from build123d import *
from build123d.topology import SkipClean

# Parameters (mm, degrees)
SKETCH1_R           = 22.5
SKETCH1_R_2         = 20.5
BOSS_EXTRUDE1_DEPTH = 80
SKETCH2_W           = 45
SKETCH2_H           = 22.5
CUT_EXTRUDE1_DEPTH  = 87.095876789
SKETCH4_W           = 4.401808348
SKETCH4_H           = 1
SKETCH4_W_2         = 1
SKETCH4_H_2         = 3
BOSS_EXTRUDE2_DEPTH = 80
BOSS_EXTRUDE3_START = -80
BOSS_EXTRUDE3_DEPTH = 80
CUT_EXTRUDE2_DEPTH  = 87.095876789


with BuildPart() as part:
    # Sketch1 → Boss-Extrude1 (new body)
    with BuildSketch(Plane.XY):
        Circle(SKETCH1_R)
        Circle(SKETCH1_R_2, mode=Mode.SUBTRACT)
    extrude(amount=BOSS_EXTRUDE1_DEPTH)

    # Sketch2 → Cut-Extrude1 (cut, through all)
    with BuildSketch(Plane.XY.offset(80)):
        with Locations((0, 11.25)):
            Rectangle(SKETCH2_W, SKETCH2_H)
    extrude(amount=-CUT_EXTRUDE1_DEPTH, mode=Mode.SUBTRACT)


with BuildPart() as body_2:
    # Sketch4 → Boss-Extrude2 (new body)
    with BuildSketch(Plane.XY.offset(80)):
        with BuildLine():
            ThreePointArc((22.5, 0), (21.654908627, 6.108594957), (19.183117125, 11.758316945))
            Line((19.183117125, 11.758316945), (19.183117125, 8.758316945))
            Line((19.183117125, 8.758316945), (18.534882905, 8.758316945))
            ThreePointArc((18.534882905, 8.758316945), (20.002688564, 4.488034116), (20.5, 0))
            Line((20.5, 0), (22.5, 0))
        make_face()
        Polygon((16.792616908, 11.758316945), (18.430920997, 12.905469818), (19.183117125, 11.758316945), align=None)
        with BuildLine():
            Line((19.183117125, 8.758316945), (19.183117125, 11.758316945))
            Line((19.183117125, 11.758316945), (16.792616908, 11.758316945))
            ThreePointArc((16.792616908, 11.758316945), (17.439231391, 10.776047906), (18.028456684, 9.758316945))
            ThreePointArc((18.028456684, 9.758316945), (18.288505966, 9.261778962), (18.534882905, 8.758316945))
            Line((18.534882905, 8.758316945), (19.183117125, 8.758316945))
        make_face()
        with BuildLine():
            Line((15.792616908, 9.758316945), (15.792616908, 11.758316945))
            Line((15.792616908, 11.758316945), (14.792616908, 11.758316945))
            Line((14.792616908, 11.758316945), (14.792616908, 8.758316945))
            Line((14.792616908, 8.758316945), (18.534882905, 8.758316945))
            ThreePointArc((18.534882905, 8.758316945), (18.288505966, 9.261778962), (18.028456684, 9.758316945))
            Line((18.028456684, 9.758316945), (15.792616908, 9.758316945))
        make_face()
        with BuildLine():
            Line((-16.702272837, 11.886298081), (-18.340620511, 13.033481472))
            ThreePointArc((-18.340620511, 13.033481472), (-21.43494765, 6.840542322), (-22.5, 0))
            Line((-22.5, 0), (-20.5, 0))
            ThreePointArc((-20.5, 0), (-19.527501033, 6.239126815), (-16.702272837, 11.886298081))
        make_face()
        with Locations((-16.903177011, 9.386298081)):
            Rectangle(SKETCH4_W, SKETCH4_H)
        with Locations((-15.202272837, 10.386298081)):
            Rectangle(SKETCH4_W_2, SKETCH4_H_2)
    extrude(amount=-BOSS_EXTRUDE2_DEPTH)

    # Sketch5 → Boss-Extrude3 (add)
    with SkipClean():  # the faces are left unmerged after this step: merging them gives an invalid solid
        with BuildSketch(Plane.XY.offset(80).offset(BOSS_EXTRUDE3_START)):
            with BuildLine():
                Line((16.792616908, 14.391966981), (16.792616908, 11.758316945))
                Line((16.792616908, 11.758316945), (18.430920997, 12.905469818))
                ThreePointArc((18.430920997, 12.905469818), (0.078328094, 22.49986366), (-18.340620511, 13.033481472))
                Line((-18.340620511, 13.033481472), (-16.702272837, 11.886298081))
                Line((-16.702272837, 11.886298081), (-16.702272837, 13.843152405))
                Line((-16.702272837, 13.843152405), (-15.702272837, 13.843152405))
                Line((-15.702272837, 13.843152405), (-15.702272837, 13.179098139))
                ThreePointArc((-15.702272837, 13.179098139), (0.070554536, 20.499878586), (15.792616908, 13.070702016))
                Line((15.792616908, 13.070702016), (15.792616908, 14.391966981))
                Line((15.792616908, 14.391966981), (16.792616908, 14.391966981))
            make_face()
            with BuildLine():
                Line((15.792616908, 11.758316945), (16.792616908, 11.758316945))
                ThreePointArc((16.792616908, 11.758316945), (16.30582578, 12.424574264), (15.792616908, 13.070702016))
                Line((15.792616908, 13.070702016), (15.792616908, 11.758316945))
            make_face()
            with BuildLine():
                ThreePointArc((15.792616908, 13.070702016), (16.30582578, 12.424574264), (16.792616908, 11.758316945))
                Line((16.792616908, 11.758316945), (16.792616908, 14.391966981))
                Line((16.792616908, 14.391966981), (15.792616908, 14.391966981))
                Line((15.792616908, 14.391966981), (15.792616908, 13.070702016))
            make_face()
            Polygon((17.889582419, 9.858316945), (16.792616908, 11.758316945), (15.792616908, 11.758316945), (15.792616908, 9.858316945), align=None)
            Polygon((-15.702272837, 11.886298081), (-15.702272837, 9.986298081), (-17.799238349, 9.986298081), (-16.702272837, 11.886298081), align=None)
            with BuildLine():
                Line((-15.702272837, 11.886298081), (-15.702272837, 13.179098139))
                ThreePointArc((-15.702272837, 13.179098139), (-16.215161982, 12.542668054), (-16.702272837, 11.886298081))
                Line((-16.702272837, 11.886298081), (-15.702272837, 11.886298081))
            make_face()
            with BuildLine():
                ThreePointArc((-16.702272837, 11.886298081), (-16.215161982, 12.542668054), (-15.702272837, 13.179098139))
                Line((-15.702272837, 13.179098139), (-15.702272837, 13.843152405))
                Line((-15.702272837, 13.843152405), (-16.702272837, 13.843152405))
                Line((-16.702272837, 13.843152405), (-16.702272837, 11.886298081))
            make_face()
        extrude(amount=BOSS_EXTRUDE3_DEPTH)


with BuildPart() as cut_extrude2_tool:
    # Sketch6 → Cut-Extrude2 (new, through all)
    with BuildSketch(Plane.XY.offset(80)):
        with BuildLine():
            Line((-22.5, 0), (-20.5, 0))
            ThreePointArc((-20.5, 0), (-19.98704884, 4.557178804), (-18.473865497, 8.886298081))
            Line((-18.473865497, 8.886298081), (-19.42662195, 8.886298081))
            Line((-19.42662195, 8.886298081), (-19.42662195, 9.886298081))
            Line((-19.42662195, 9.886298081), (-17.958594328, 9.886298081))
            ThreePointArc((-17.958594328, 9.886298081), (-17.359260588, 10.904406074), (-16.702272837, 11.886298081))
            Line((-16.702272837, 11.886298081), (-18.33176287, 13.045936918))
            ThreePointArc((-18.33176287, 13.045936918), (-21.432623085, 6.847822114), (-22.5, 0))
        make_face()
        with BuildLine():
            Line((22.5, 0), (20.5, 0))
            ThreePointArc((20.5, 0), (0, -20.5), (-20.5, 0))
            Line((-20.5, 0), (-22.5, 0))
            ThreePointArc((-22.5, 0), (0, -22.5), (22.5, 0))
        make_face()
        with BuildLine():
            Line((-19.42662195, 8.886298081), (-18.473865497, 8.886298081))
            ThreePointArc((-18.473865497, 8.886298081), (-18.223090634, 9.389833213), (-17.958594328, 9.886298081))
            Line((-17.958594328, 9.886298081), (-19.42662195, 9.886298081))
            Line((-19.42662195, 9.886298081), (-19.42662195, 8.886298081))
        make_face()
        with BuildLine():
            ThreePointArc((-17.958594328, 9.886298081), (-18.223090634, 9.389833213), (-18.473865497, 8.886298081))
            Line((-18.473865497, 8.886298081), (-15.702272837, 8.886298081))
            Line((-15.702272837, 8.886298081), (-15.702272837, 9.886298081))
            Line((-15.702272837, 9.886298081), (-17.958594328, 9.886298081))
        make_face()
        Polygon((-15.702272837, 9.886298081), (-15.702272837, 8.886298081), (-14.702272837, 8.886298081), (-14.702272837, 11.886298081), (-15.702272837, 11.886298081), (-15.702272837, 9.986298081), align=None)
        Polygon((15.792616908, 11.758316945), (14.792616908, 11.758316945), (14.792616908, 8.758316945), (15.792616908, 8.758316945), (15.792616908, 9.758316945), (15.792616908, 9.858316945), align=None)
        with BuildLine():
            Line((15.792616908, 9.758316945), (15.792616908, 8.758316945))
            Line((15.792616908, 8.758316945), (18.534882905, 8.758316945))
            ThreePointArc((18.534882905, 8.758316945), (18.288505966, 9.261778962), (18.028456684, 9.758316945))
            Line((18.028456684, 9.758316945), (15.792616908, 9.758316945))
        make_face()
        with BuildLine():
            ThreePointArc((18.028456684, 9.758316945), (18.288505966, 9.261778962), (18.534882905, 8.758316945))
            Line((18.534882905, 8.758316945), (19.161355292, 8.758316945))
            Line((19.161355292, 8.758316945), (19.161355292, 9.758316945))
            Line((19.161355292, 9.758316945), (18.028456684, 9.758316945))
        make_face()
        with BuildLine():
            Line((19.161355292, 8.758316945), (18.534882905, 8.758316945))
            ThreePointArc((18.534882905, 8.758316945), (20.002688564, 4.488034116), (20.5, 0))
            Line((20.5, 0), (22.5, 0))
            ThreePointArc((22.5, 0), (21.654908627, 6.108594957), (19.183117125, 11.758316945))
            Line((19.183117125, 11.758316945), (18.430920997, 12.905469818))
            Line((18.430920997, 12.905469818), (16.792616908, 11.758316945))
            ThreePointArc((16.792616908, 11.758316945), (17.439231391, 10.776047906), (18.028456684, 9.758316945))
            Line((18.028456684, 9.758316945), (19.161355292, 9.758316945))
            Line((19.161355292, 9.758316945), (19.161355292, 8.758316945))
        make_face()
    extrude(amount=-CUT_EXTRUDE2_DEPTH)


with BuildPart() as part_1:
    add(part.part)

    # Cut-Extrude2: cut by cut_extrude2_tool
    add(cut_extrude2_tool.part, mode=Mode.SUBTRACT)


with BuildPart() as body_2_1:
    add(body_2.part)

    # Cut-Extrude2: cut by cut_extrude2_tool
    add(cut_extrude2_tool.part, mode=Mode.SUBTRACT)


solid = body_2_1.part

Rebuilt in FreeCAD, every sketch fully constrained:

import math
import FreeCAD as App
import Part
import Sketcher
Q = App.Units.Quantity

doc = App.newDocument("Part")
body = doc.addObject("PartDesign::Body", "Body")

# Sketch on XY plane
sketch1 = body.newObject("Sketcher::SketchObject", "Sketch")
sketch1.AttachmentSupport = (doc.getObject("XY_Plane"), [""])
sketch1.MapMode = "FlatFace"
sketch1.addGeometry(Part.Circle(App.Vector(0, 0, 0), App.Vector(0, 0, 1), 22), False)
sketch1.addGeometry(Part.Circle(App.Vector(0, 0, 0), App.Vector(0, 0, 1), 20), False)
sketch1.addConstraint(Sketcher.Constraint("Coincident", 0, 3, -1, 1))
sketch1.addConstraint(Sketcher.Constraint("Coincident", 1, 3, -1, 1))
sketch1.addConstraint(Sketcher.Constraint("Diameter", 0, Q("45 mm")))
sketch1.addConstraint(Sketcher.Constraint("Diameter", 1, Q("41 mm")))
pad1 = body.newObject("PartDesign::Pad", "Pad")
pad1.Profile = sketch1
pad1.Length = 80

# Sketch on XY plane
sketch2 = body.newObject("Sketcher::SketchObject", "Sketch001")
sketch2.AttachmentSupport = (doc.getObject("XY_Plane"), [""])
sketch2.MapMode = "FlatFace"
sketch2.AttachmentOffset = App.Placement(App.Vector(0, 0, 80), App.Rotation())
sketch2.addGeometry(Part.LineSegment(App.Vector(-22, 22, 0), App.Vector(-22, 0, 0)), False)
sketch2.addGeometry(Part.LineSegment(App.Vector(-22, 0, 0), App.Vector(22, 0, 0)), False)
sketch2.addGeometry(Part.LineSegment(App.Vector(22, 0, 0), App.Vector(22, 22, 0)), False)
sketch2.addGeometry(Part.LineSegment(App.Vector(22, 22, 0), App.Vector(-22, 22, 0)), False)
sketch2.addConstraint(Sketcher.Constraint("Coincident", 0, 2, 1, 1))
sketch2.addConstraint(Sketcher.Constraint("Coincident", 1, 2, 2, 1))
sketch2.addConstraint(Sketcher.Constraint("Coincident", 2, 2, 3, 1))
sketch2.addConstraint(Sketcher.Constraint("Coincident", 3, 2, 0, 1))
sketch2.addConstraint(Sketcher.Constraint("Vertical", 0))
sketch2.addConstraint(Sketcher.Constraint("Horizontal", 1))
sketch2.addConstraint(Sketcher.Constraint("Vertical", 2))
sketch2.addConstraint(Sketcher.Constraint("Horizontal", 3))
sketch2.addConstraint(Sketcher.Constraint("Symmetric", 0, 2, 1, 2, -1, 1))
sketch2.addConstraint(Sketcher.Constraint("DistanceX", 1, 1, 1, 2, Q("45 mm")))
sketch2.addConstraint(Sketcher.Constraint("DistanceY", 0, 2, 0, 1, Q("22.5 mm")))
pocket1 = body.newObject("PartDesign::Pocket", "Pocket")
pocket1.Profile = sketch2
pocket1.Type = "ThroughAll"
body2 = doc.addObject("PartDesign::Body", "Body001")
body2.AllowCompound = True

# Sketch on XY plane
sketch3 = body2.newObject("Sketcher::SketchObject", "Sketch002")
sketch3.AttachmentSupport = (doc.getObject("XY_Plane001"), [""])
sketch3.MapMode = "FlatFace"
sketch3.AttachmentOffset = App.Placement(App.Vector(0, 0, 80), App.Rotation())
sketch3.addGeometry(Part.ArcOfCircle(Part.Circle(App.Vector(0, 0, 0), App.Vector(0, 0, 1), 22.5), math.radians(0), math.radians(32)), False)
sketch3.addGeometry(Part.LineSegment(App.Vector(19.2, 11.8, 0), App.Vector(18.4, 12.9, 0)), False)
sketch3.addGeometry(Part.LineSegment(App.Vector(18.4, 12.9, 0), App.Vector(16.8, 11.8, 0)), False)
sketch3.addGeometry(Part.ArcOfCircle(Part.Circle(App.Vector(0, 0, 0), App.Vector(0, 0, 1), 20.5), math.radians(28.43), math.radians(35)), False)
sketch3.addGeometry(Part.LineSegment(App.Vector(18, 9.8, 0), App.Vector(15.8, 9.8, 0)), False)
sketch3.addGeometry(Part.LineSegment(App.Vector(15.8, 9.8, 0), App.Vector(15.8, 11.8, 0)), False)
sketch3.addGeometry(Part.LineSegment(App.Vector(15.8, 11.8, 0), App.Vector(14.8, 11.8, 0)), False)
sketch3.addGeometry(Part.LineSegment(App.Vector(14.8, 11.8, 0), App.Vector(14.8, 8.8, 0)), False)
sketch3.addGeometry(Part.LineSegment(App.Vector(14.8, 8.8, 0), App.Vector(18.5, 8.8, 0)), False)
sketch3.addGeometry(Part.ArcOfCircle(Part.Circle(App.Vector(0, 0, 0), App.Vector(0, 0, 1), 20.5), math.radians(0), math.radians(25)), False)
sketch3.addGeometry(Part.LineSegment(App.Vector(20.5, 0, 0), App.Vector(22.5, 0, 0)), False)
sketch3.addGeometry(Part.LineSegment(App.Vector(-15.7, 9.9, 0), App.Vector(-18, 9.9, 0)), False)
sketch3.addGeometry(Part.ArcOfCircle(Part.Circle(App.Vector(0, 0, 0), App.Vector(0, 0, 1), 20.5), math.radians(144.56), math.radians(151.17)), False)
sketch3.addGeometry(Part.LineSegment(App.Vector(-16.7, 11.9, 0), App.Vector(-18.3, 13, 0)), False)
sketch3.addGeometry(Part.ArcOfCircle(Part.Circle(App.Vector(0, 0, 0), App.Vector(0, 0, 1), 22.5), math.radians(145), math.radians(180)), False)
sketch3.addGeometry(Part.LineSegment(App.Vector(-22.5, 0, 0), App.Vector(-20.5, 0, 0)), False)
sketch3.addGeometry(Part.ArcOfCircle(Part.Circle(App.Vector(0, 0, 0), App.Vector(0, 0, 1), 20.5), math.radians(154), math.radians(180)), False)
sketch3.addGeometry(Part.LineSegment(App.Vector(-18.5, 8.9, 0), App.Vector(-14.7, 8.9, 0)), False)
sketch3.addGeometry(Part.LineSegment(App.Vector(-14.7, 8.9, 0), App.Vector(-14.7, 11.9, 0)), False)
sketch3.addGeometry(Part.LineSegment(App.Vector(-14.7, 11.9, 0), App.Vector(-15.7, 11.9, 0)), False)
sketch3.addGeometry(Part.LineSegment(App.Vector(-15.7, 11.9, 0), App.Vector(-15.7, 9.9, 0)), False)
sketch3.addConstraint(Sketcher.Constraint("Coincident", 0, 2, 1, 1))
sketch3.addConstraint(Sketcher.Constraint("Coincident", 1, 2, 2, 1))
sketch3.addConstraint(Sketcher.Constraint("Coincident", 2, 2, 3, 2))
sketch3.addConstraint(Sketcher.Constraint("Coincident", 3, 1, 4, 1))
sketch3.addConstraint(Sketcher.Constraint("Coincident", 4, 2, 5, 1))
sketch3.addConstraint(Sketcher.Constraint("Coincident", 5, 2, 6, 1))
sketch3.addConstraint(Sketcher.Constraint("Coincident", 6, 2, 7, 1))
sketch3.addConstraint(Sketcher.Constraint("Coincident", 7, 2, 8, 1))
sketch3.addConstraint(Sketcher.Constraint("Coincident", 8, 2, 9, 2))
sketch3.addConstraint(Sketcher.Constraint("Coincident", 9, 1, 10, 1))
sketch3.addConstraint(Sketcher.Constraint("Coincident", 10, 2, 0, 1))
sketch3.addConstraint(Sketcher.Constraint("Coincident", 11, 2, 12, 2))
sketch3.addConstraint(Sketcher.Constraint("Coincident", 12, 1, 13, 1))
sketch3.addConstraint(Sketcher.Constraint("Coincident", 13, 2, 14, 1))
sketch3.addConstraint(Sketcher.Constraint("Coincident", 14, 2, 15, 1))
sketch3.addConstraint(Sketcher.Constraint("Coincident", 15, 2, 16, 2))
sketch3.addConstraint(Sketcher.Constraint("Coincident", 16, 1, 17, 1))
sketch3.addConstraint(Sketcher.Constraint("Coincident", 17, 2, 18, 1))
sketch3.addConstraint(Sketcher.Constraint("Coincident", 18, 2, 19, 1))
sketch3.addConstraint(Sketcher.Constraint("Coincident", 19, 2, 20, 1))
sketch3.addConstraint(Sketcher.Constraint("Coincident", 20, 2, 11, 1))
sketch3.addConstraint(Sketcher.Constraint("Horizontal", 4))
sketch3.addConstraint(Sketcher.Constraint("Vertical", 5))
sketch3.addConstraint(Sketcher.Constraint("Horizontal", 6))
sketch3.addConstraint(Sketcher.Constraint("Vertical", 7))
sketch3.addConstraint(Sketcher.Constraint("Horizontal", 8))
sketch3.addConstraint(Sketcher.Constraint("Horizontal", 10))
sketch3.addConstraint(Sketcher.Constraint("Horizontal", 11))
sketch3.addConstraint(Sketcher.Constraint("Horizontal", 15))
sketch3.addConstraint(Sketcher.Constraint("Horizontal", 17))
sketch3.addConstraint(Sketcher.Constraint("Vertical", 18))
sketch3.addConstraint(Sketcher.Constraint("Horizontal", 19))
sketch3.addConstraint(Sketcher.Constraint("Vertical", 20))
sketch3.addConstraint(Sketcher.Constraint("Coincident", 0, 3, -1, 1))
sketch3.addConstraint(Sketcher.Constraint("Coincident", 3, 3, -1, 1))
sketch3.addConstraint(Sketcher.Constraint("Coincident", 9, 3, -1, 1))
sketch3.addConstraint(Sketcher.Constraint("Coincident", 12, 3, -1, 1))
sketch3.addConstraint(Sketcher.Constraint("Coincident", 14, 3, -1, 1))
sketch3.addConstraint(Sketcher.Constraint("Coincident", 16, 3, -1, 1))
sketch3.addConstraint(Sketcher.Constraint("Equal", 3, 9))
sketch3.addConstraint(Sketcher.Constraint("Equal", 9, 12))
sketch3.addConstraint(Sketcher.Constraint("Equal", 0, 14))
sketch3.addConstraint(Sketcher.Constraint("Equal", 12, 16))
sketch3.addConstraint(Sketcher.Constraint("PointOnObject", 9, 1, -1))
sketch3.addConstraint(Sketcher.Constraint("PointOnObject", 14, 2, -1))
sketch3.addConstraint(Sketcher.Constraint("Horizontal", 0, 2, 2, 2))
sketch3.addConstraint(Sketcher.Constraint("Horizontal", 2, 2, 5, 2))
sketch3.addConstraint(Sketcher.Constraint("Horizontal", 12, 1, 18, 2))
sketch3.addConstraint(Sketcher.Constraint("Equal", 6, 19))
sketch3.addConstraint(Sketcher.Constraint("Equal", 15, 5))
sketch3.addConstraint(Sketcher.Constraint("Equal", 7, 18))
sketch3.addConstraint(Sketcher.Constraint("Equal", 5, 20))
sketch3.addConstraint(Sketcher.Constraint("Radius", 0, Q("22.5 mm")))
sketch3.addConstraint(Sketcher.Constraint("Radius", 3, Q("20.5 mm")))
sketch3.addConstraint(Sketcher.Constraint("DistanceX", 6, 2, 6, 1, Q("1 mm")))
sketch3.addConstraint(Sketcher.Constraint("DistanceY", 7, 2, 7, 1, Q("3 mm")))
sketch3.addConstraint(Sketcher.Constraint("Angle", 2, Q("-145 deg")))
sketch3.addConstraint(Sketcher.Constraint("Angle", 13, Q("145 deg")))
sketch3.addConstraint(Sketcher.Constraint("Distance", 2, Q("2 mm")))
sketch3.addConstraint(Sketcher.Constraint("DistanceX", 4, 2, 2, 2, Q("1 mm")))
sketch3.addConstraint(Sketcher.Constraint("DistanceX", 12, 1, 17, 2, Q("2 mm")))
sketch3.addConstraint(Sketcher.Constraint("DistanceX", 4, 2, 4, 1, Q("2.23584 mm")))
sketch3.addConstraint(Sketcher.Constraint("DistanceX", 11, 2, 11, 1, Q("2.256321 mm")))
pad2 = body2.newObject("PartDesign::Pad", "Pad001")
pad2.Profile = sketch3
pad2.Length = 80
pad2.Reversed = True

# Sketch on XY plane
sketch4 = body2.newObject("Sketcher::SketchObject", "Sketch003")
sketch4.AttachmentSupport = (doc.getObject("XY_Plane001"), [""])
sketch4.MapMode = "FlatFace"
sketch4.addGeometry(Part.LineSegment(App.Vector(16.8, 14.4, 0), App.Vector(16.8, 11.8, 0)), False)
sketch4.addGeometry(Part.LineSegment(App.Vector(16.8, 11.8, 0), App.Vector(18.4, 12.9, 0)), False)
sketch4.addGeometry(Part.ArcOfCircle(Part.Circle(App.Vector(0, 0, 0), App.Vector(0, 0, 1), 22.5), math.radians(35), math.radians(145)), False)
sketch4.addGeometry(Part.LineSegment(App.Vector(-18.3, 13, 0), App.Vector(-16.7, 11.9, 0)), False)
sketch4.addGeometry(Part.LineSegment(App.Vector(-16.7, 11.9, 0), App.Vector(-16.7, 13.8, 0)), False)
sketch4.addGeometry(Part.LineSegment(App.Vector(-16.7, 13.8, 0), App.Vector(-15.7, 13.8, 0)), False)
sketch4.addGeometry(Part.LineSegment(App.Vector(-15.7, 13.8, 0), App.Vector(-15.7, 13.2, 0)), False)
sketch4.addGeometry(Part.ArcOfCircle(Part.Circle(App.Vector(0, 0, 0), App.Vector(0, 0, 1), 20.5), math.radians(40), math.radians(140)), False)
sketch4.addGeometry(Part.LineSegment(App.Vector(15.8, 13.1, 0), App.Vector(15.8, 14.4, 0)), False)
sketch4.addGeometry(Part.LineSegment(App.Vector(15.8, 14.4, 0), App.Vector(16.8, 14.4, 0)), False)
sketch4.addGeometry(Part.LineSegment(App.Vector(15.8, 11.8, 0), App.Vector(16.8, 11.8, 0)), False)
sketch4.addGeometry(Part.ArcOfCircle(Part.Circle(App.Vector(0, 0, 0), App.Vector(0, 0, 1), 20.5), math.radians(35), math.radians(39.61)), False)
sketch4.addGeometry(Part.LineSegment(App.Vector(15.8, 13.1, 0), App.Vector(15.8, 11.8, 0)), False)
sketch4.addGeometry(Part.ArcOfCircle(Part.Circle(App.Vector(0, 0, 0), App.Vector(0, 0, 1), 20.5), math.radians(35), math.radians(39.61)), False)
sketch4.addGeometry(Part.LineSegment(App.Vector(16.8, 11.8, 0), App.Vector(16.8, 14.4, 0)), False)
sketch4.addGeometry(Part.LineSegment(App.Vector(16.8, 14.4, 0), App.Vector(15.8, 14.4, 0)), False)
sketch4.addGeometry(Part.LineSegment(App.Vector(15.8, 14.4, 0), App.Vector(15.8, 13.1, 0)), False)
sketch4.addGeometry(Part.LineSegment(App.Vector(17.9, 9.9, 0), App.Vector(16.8, 11.8, 0)), False)
sketch4.addGeometry(Part.LineSegment(App.Vector(16.8, 11.8, 0), App.Vector(15.8, 11.8, 0)), False)
sketch4.addGeometry(Part.LineSegment(App.Vector(15.8, 11.8, 0), App.Vector(15.8, 9.9, 0)), False)
sketch4.addGeometry(Part.LineSegment(App.Vector(15.8, 9.9, 0), App.Vector(17.9, 9.9, 0)), False)
sketch4.addGeometry(Part.LineSegment(App.Vector(-15.7, 10, 0), App.Vector(-15.7, 11.9, 0)), False)
sketch4.addGeometry(Part.LineSegment(App.Vector(-15.7, 11.9, 0), App.Vector(-16.7, 11.9, 0)), False)
sketch4.addGeometry(Part.LineSegment(App.Vector(-16.7, 11.9, 0), App.Vector(-17.8, 10, 0)), False)
sketch4.addGeometry(Part.LineSegment(App.Vector(-17.8, 10, 0), App.Vector(-15.7, 10, 0)), False)
sketch4.addGeometry(Part.LineSegment(App.Vector(-15.7, 11.9, 0), App.Vector(-15.7, 13.2, 0)), False)
sketch4.addGeometry(Part.ArcOfCircle(Part.Circle(App.Vector(0, 0, 0), App.Vector(0, 0, 1), 20.5), math.radians(139.99), math.radians(144.56)), False)
sketch4.addGeometry(Part.LineSegment(App.Vector(-16.7, 11.9, 0), App.Vector(-15.7, 11.9, 0)), False)
sketch4.addGeometry(Part.ArcOfCircle(Part.Circle(App.Vector(0, 0, 0), App.Vector(0, 0, 1), 20.5), math.radians(139.99), math.radians(144.56)), False)
sketch4.addGeometry(Part.LineSegment(App.Vector(-15.7, 13.2, 0), App.Vector(-15.7, 13.8, 0)), False)
sketch4.addGeometry(Part.LineSegment(App.Vector(-15.7, 13.8, 0), App.Vector(-16.7, 13.8, 0)), False)
sketch4.addGeometry(Part.LineSegment(App.Vector(-16.7, 13.8, 0), App.Vector(-16.7, 11.9, 0)), False)
sketch4.addConstraint(Sketcher.Constraint("Coincident", 0, 2, 1, 1))
sketch4.addConstraint(Sketcher.Constraint("Coincident", 1, 2, 2, 1))
sketch4.addConstraint(Sketcher.Constraint("Coincident", 2, 2, 3, 1))
sketch4.addConstraint(Sketcher.Constraint("Coincident", 3, 2, 4, 1))
sketch4.addConstraint(Sketcher.Constraint("Coincident", 4, 2, 5, 1))
sketch4.addConstraint(Sketcher.Constraint("Coincident", 5, 2, 6, 1))
sketch4.addConstraint(Sketcher.Constraint("Coincident", 6, 2, 7, 2))
sketch4.addConstraint(Sketcher.Constraint("Coincident", 7, 1, 8, 1))
sketch4.addConstraint(Sketcher.Constraint("Coincident", 8, 2, 9, 1))
sketch4.addConstraint(Sketcher.Constraint("Coincident", 9, 2, 0, 1))
sketch4.addConstraint(Sketcher.Constraint("Coincident", 10, 2, 11, 1))
sketch4.addConstraint(Sketcher.Constraint("Coincident", 11, 2, 12, 1))
sketch4.addConstraint(Sketcher.Constraint("Coincident", 12, 2, 10, 1))
sketch4.addConstraint(Sketcher.Constraint("Coincident", 13, 1, 14, 1))
sketch4.addConstraint(Sketcher.Constraint("Coincident", 14, 2, 15, 1))
sketch4.addConstraint(Sketcher.Constraint("Coincident", 15, 2, 16, 1))
sketch4.addConstraint(Sketcher.Constraint("Coincident", 16, 2, 13, 2))
sketch4.addConstraint(Sketcher.Constraint("Coincident", 17, 2, 18, 1))
sketch4.addConstraint(Sketcher.Constraint("Coincident", 18, 2, 19, 1))
sketch4.addConstraint(Sketcher.Constraint("Coincident", 19, 2, 20, 1))
sketch4.addConstraint(Sketcher.Constraint("Coincident", 20, 2, 17, 1))
sketch4.addConstraint(Sketcher.Constraint("Coincident", 21, 2, 22, 1))
sketch4.addConstraint(Sketcher.Constraint("Coincident", 22, 2, 23, 1))
sketch4.addConstraint(Sketcher.Constraint("Coincident", 23, 2, 24, 1))
sketch4.addConstraint(Sketcher.Constraint("Coincident", 24, 2, 21, 1))
sketch4.addConstraint(Sketcher.Constraint("Coincident", 25, 2, 26, 1))
sketch4.addConstraint(Sketcher.Constraint("Coincident", 26, 2, 27, 1))
sketch4.addConstraint(Sketcher.Constraint("Coincident", 27, 2, 25, 1))
sketch4.addConstraint(Sketcher.Constraint("Coincident", 28, 1, 29, 1))
sketch4.addConstraint(Sketcher.Constraint("Coincident", 29, 2, 30, 1))
sketch4.addConstraint(Sketcher.Constraint("Coincident", 30, 2, 31, 1))
sketch4.addConstraint(Sketcher.Constraint("Coincident", 31, 2, 28, 2))
sketch4.addConstraint(Sketcher.Constraint("Vertical", 0))
sketch4.addConstraint(Sketcher.Constraint("Vertical", 4))
sketch4.addConstraint(Sketcher.Constraint("Horizontal", 5))
sketch4.addConstraint(Sketcher.Constraint("Vertical", 6))
sketch4.addConstraint(Sketcher.Constraint("Vertical", 8))
sketch4.addConstraint(Sketcher.Constraint("Horizontal", 9))
sketch4.addConstraint(Sketcher.Constraint("Horizontal", 10))
sketch4.addConstraint(Sketcher.Constraint("Vertical", 12))
sketch4.addConstraint(Sketcher.Constraint("Vertical", 14))
sketch4.addConstraint(Sketcher.Constraint("Horizontal", 15))
sketch4.addConstraint(Sketcher.Constraint("Vertical", 16))
sketch4.addConstraint(Sketcher.Constraint("Horizontal", 18))
sketch4.addConstraint(Sketcher.Constraint("Vertical", 19))
sketch4.addConstraint(Sketcher.Constraint("Horizontal", 20))
sketch4.addConstraint(Sketcher.Constraint("Vertical", 21))
sketch4.addConstraint(Sketcher.Constraint("Horizontal", 22))
sketch4.addConstraint(Sketcher.Constraint("Horizontal", 24))
sketch4.addConstraint(Sketcher.Constraint("Vertical", 25))
sketch4.addConstraint(Sketcher.Constraint("Horizontal", 27))
sketch4.addConstraint(Sketcher.Constraint("Vertical", 29))
sketch4.addConstraint(Sketcher.Constraint("Horizontal", 30))
sketch4.addConstraint(Sketcher.Constraint("Vertical", 31))
sketch4.addConstraint(Sketcher.Constraint("Coincident", 2, 3, -1, 1))
sketch4.addConstraint(Sketcher.Constraint("Coincident", 7, 3, -1, 1))
sketch4.addConstraint(Sketcher.Constraint("Coincident", 11, 3, -1, 1))
sketch4.addConstraint(Sketcher.Constraint("Coincident", 13, 3, -1, 1))
sketch4.addConstraint(Sketcher.Constraint("Coincident", 26, 3, -1, 1))
sketch4.addConstraint(Sketcher.Constraint("Coincident", 28, 3, -1, 1))
sketch4.addConstraint(Sketcher.Constraint("Coincident", 10, 2, 0, 2))
sketch4.addConstraint(Sketcher.Constraint("Coincident", 11, 2, 7, 1))
sketch4.addConstraint(Sketcher.Constraint("Coincident", 13, 1, 0, 2))
sketch4.addConstraint(Sketcher.Constraint("Coincident", 15, 2, 8, 2))
sketch4.addConstraint(Sketcher.Constraint("Coincident", 17, 2, 0, 2))
sketch4.addConstraint(Sketcher.Constraint("Coincident", 22, 2, 3, 2))
sketch4.addConstraint(Sketcher.Constraint("Coincident", 25, 2, 6, 2))
sketch4.addConstraint(Sketcher.Constraint("Coincident", 26, 2, 3, 2))
sketch4.addConstraint(Sketcher.Constraint("Coincident", 28, 1, 6, 2))
sketch4.addConstraint(Sketcher.Constraint("Coincident", 30, 2, 4, 2))
sketch4.addConstraint(Sketcher.Constraint("Vertical", 16, 2, 18, 2))
sketch4.addConstraint(Sketcher.Constraint("Vertical", 6, 2, 21, 2))
sketch4.addConstraint(Sketcher.Constraint("Equal", 5, 9))
sketch4.addConstraint(Sketcher.Constraint("Equal", 20, 24))
sketch4.addConstraint(Sketcher.Constraint("Equal", 19, 21))
sketch4.addConstraint(Sketcher.Constraint("Radius", 2, Q("22.5 mm")))
sketch4.addConstraint(Sketcher.Constraint("Radius", 7, Q("20.5 mm")))
sketch4.addConstraint(Sketcher.Constraint("DistanceX", 5, 1, 5, 2, Q("1 mm")))
sketch4.addConstraint(Sketcher.Constraint("Angle", 1, Q("35 deg")))
sketch4.addConstraint(Sketcher.Constraint("Angle", 3, Q("-35 deg")))
sketch4.addConstraint(Sketcher.Constraint("Angle", 17, Q("120 deg")))
sketch4.addConstraint(Sketcher.Constraint("DistanceY", 19, 2, 19, 1, Q("1.9 mm")))
sketch4.addConstraint(Sketcher.Constraint("DistanceY", 25, 1, 25, 2, Q("1.2928 mm")))
sketch4.addConstraint(Sketcher.Constraint("DistanceY", 0, 2, 0, 1, Q("2.63365 mm")))
sketch4.addConstraint(Sketcher.Constraint("DistanceY", 11, 3, 7, 1, Q("13.070702 mm")))
sketch4.addConstraint(Sketcher.Constraint("DistanceY", 4, 1, 4, 2, Q("1.956854 mm")))
pad3 = body2.newObject("PartDesign::Pad", "Pad002")
pad3.Profile = sketch4
pad3.Length = 80
body3 = doc.addObject("PartDesign::Body", "Body002")

# Sketch on XY plane
sketch5 = body3.newObject("Sketcher::SketchObject", "Sketch004")
sketch5.AttachmentSupport = (doc.getObject("XY_Plane002"), [""])
sketch5.MapMode = "FlatFace"
sketch5.AttachmentOffset = App.Placement(App.Vector(0, 0, 80), App.Rotation())
sketch5.addGeometry(Part.ArcOfCircle(Part.Circle(App.Vector(0, 0, 0), App.Vector(0, 0, 1), 20.5), math.radians(154), math.radians(180)), False)
sketch5.addGeometry(Part.LineSegment(App.Vector(-18.5, 8.9, 0), App.Vector(-14.7, 8.9, 0)), False)
sketch5.addGeometry(Part.LineSegment(App.Vector(-14.7, 8.9, 0), App.Vector(-14.7, 11.9, 0)), False)
sketch5.addGeometry(Part.LineSegment(App.Vector(-14.7, 11.9, 0), App.Vector(-15.7, 11.9, 0)), False)
sketch5.addGeometry(Part.LineSegment(App.Vector(-15.7, 11.9, 0), App.Vector(-15.7, 9.9, 0)), False)
sketch5.addGeometry(Part.LineSegment(App.Vector(-15.7, 9.9, 0), App.Vector(-18, 9.9, 0)), False)
sketch5.addGeometry(Part.ArcOfCircle(Part.Circle(App.Vector(0, 0, 0), App.Vector(0, 0, 1), 20.5), math.radians(144.56), math.radians(151.17)), False)
sketch5.addGeometry(Part.LineSegment(App.Vector(-16.7, 11.9, 0), App.Vector(-18.3, 13, 0)), False)
sketch5.addGeometry(Part.ArcOfCircle(Part.Circle(App.Vector(0, 0, 0), App.Vector(0, 0, 1), 22.5), math.radians(145), math.radians(180)), False)
sketch5.addGeometry(Part.ArcOfCircle(Part.Circle(App.Vector(0, 0, 0), App.Vector(0, 0, 1), 22.5), math.radians(180), math.radians(360)), False)
sketch5.addGeometry(Part.ArcOfCircle(Part.Circle(App.Vector(0, 0, 0), App.Vector(0, 0, 1), 22.5), math.radians(0), math.radians(32)), False)
sketch5.addGeometry(Part.LineSegment(App.Vector(19.2, 11.8, 0), App.Vector(18.4, 12.9, 0)), False)
sketch5.addGeometry(Part.LineSegment(App.Vector(18.4, 12.9, 0), App.Vector(16.8, 11.8, 0)), False)
sketch5.addGeometry(Part.ArcOfCircle(Part.Circle(App.Vector(0, 0, 0), App.Vector(0, 0, 1), 20.5), math.radians(28.43), math.radians(35)), False)
sketch5.addGeometry(Part.LineSegment(App.Vector(18, 9.8, 0), App.Vector(15.8, 9.8, 0)), False)
sketch5.addGeometry(Part.LineSegment(App.Vector(15.8, 9.8, 0), App.Vector(15.8, 11.8, 0)), False)
sketch5.addGeometry(Part.LineSegment(App.Vector(15.8, 11.8, 0), App.Vector(14.8, 11.8, 0)), False)
sketch5.addGeometry(Part.LineSegment(App.Vector(14.8, 11.8, 0), App.Vector(14.8, 8.8, 0)), False)
sketch5.addGeometry(Part.LineSegment(App.Vector(14.8, 8.8, 0), App.Vector(18.5, 8.8, 0)), False)
sketch5.addGeometry(Part.ArcOfCircle(Part.Circle(App.Vector(0, 0, 0), App.Vector(0, 0, 1), 20.5), math.radians(0), math.radians(25)), False)
sketch5.addGeometry(Part.ArcOfCircle(Part.Circle(App.Vector(0, 0, 0), App.Vector(0, 0, 1), 20.5), math.radians(180), math.radians(360)), False)
sketch5.addConstraint(Sketcher.Constraint("Coincident", 0, 1, 1, 1))
sketch5.addConstraint(Sketcher.Constraint("Coincident", 1, 2, 2, 1))
sketch5.addConstraint(Sketcher.Constraint("Coincident", 2, 2, 3, 1))
sketch5.addConstraint(Sketcher.Constraint("Coincident", 3, 2, 4, 1))
sketch5.addConstraint(Sketcher.Constraint("Coincident", 4, 2, 5, 1))
sketch5.addConstraint(Sketcher.Constraint("Coincident", 5, 2, 6, 2))
sketch5.addConstraint(Sketcher.Constraint("Coincident", 6, 1, 7, 1))
sketch5.addConstraint(Sketcher.Constraint("Coincident", 7, 2, 8, 1))
sketch5.addConstraint(Sketcher.Constraint("Tangent", 8, 2, 9, 1))
sketch5.addConstraint(Sketcher.Constraint("Tangent", 9, 2, 10, 1))
sketch5.addConstraint(Sketcher.Constraint("Coincident", 10, 2, 11, 1))
sketch5.addConstraint(Sketcher.Constraint("Coincident", 11, 2, 12, 1))
sketch5.addConstraint(Sketcher.Constraint("Coincident", 12, 2, 13, 2))
sketch5.addConstraint(Sketcher.Constraint("Coincident", 13, 1, 14, 1))
sketch5.addConstraint(Sketcher.Constraint("Coincident", 14, 2, 15, 1))
sketch5.addConstraint(Sketcher.Constraint("Coincident", 15, 2, 16, 1))
sketch5.addConstraint(Sketcher.Constraint("Coincident", 16, 2, 17, 1))
sketch5.addConstraint(Sketcher.Constraint("Coincident", 17, 2, 18, 1))
sketch5.addConstraint(Sketcher.Constraint("Coincident", 18, 2, 19, 2))
sketch5.addConstraint(Sketcher.Constraint("Tangent", 19, 1, 20, 2))
sketch5.addConstraint(Sketcher.Constraint("Tangent", 20, 1, 0, 2))
sketch5.addConstraint(Sketcher.Constraint("Horizontal", 1))
sketch5.addConstraint(Sketcher.Constraint("Vertical", 2))
sketch5.addConstraint(Sketcher.Constraint("Horizontal", 3))
sketch5.addConstraint(Sketcher.Constraint("Vertical", 4))
sketch5.addConstraint(Sketcher.Constraint("Horizontal", 5))
sketch5.addConstraint(Sketcher.Constraint("Horizontal", 14))
sketch5.addConstraint(Sketcher.Constraint("Vertical", 15))
sketch5.addConstraint(Sketcher.Constraint("Horizontal", 16))
sketch5.addConstraint(Sketcher.Constraint("Vertical", 17))
sketch5.addConstraint(Sketcher.Constraint("Horizontal", 18))
sketch5.addConstraint(Sketcher.Constraint("Coincident", 0, 3, -1, 1))
sketch5.addConstraint(Sketcher.Constraint("Coincident", 6, 3, -1, 1))
sketch5.addConstraint(Sketcher.Constraint("Coincident", 8, 3, -1, 1))
sketch5.addConstraint(Sketcher.Constraint("Coincident", 13, 3, -1, 1))
sketch5.addConstraint(Sketcher.Constraint("Equal", 0, 6))
sketch5.addConstraint(Sketcher.Constraint("Equal", 8, 9))
sketch5.addConstraint(Sketcher.Constraint("Equal", 9, 10))
sketch5.addConstraint(Sketcher.Constraint("Equal", 6, 13))
sketch5.addConstraint(Sketcher.Constraint("Equal", 13, 19))
sketch5.addConstraint(Sketcher.Constraint("Equal", 19, 20))
sketch5.addConstraint(Sketcher.Constraint("PointOnObject", 8, 2, -1))
sketch5.addConstraint(Sketcher.Constraint("PointOnObject", 9, 2, -1))
sketch5.addConstraint(Sketcher.Constraint("PointOnObject", 19, 1, -1))
sketch5.addConstraint(Sketcher.Constraint("PointOnObject", 20, 1, -1))
sketch5.addConstraint(Sketcher.Constraint("Horizontal", 3, 2, 6, 1))
sketch5.addConstraint(Sketcher.Constraint("Horizontal", 10, 2, 12, 2))
sketch5.addConstraint(Sketcher.Constraint("Horizontal", 12, 2, 15, 2))
sketch5.addConstraint(Sketcher.Constraint("Equal", 3, 16))
sketch5.addConstraint(Sketcher.Constraint("Equal", 4, 15))
sketch5.addConstraint(Sketcher.Constraint("Equal", 2, 17))
sketch5.addConstraint(Sketcher.Constraint("Equal", 7, 12))
sketch5.addConstraint(Sketcher.Constraint("Radius", 0, Q("20.5 mm")))
sketch5.addConstraint(Sketcher.Constraint("Radius", 8, Q("22.5 mm")))
sketch5.addConstraint(Sketcher.Constraint("DistanceX", 3, 2, 3, 1, Q("1 mm")))
sketch5.addConstraint(Sketcher.Constraint("DistanceY", 2, 1, 2, 2, Q("3 mm")))
sketch5.addConstraint(Sketcher.Constraint("DistanceY", 4, 2, 4, 1, Q("2 mm")))
sketch5.addConstraint(Sketcher.Constraint("Angle", 12, Q("-145 deg")))
sketch5.addConstraint(Sketcher.Constraint("DistanceX", 6, 1, 3, 2, Q("1 mm")))
sketch5.addConstraint(Sketcher.Constraint("DistanceX", 14, 2, 12, 2, Q("1 mm")))
sketch5.addConstraint(Sketcher.Constraint("DistanceX", 5, 2, 5, 1, Q("2.256321 mm")))
sketch5.addConstraint(Sketcher.Constraint("DistanceX", 14, 2, 14, 1, Q("2.23584 mm")))
sketch5.addConstraint(Sketcher.Constraint("DistanceX", 7, 2, 6, 1, Q("1.62949 mm")))
pad4 = body3.newObject("PartDesign::Pad", "Pad003")
pad4.Profile = sketch5
pad4.Length = 87.095877
pad4.Reversed = True
doc.recompute()

body4 = doc.addObject("PartDesign::Body", "Body003")
body4.BaseFeature = body3
boolean = body.newObject("PartDesign::Boolean", "Boolean")
boolean.Type = "Cut"
boolean.addObjects([body4])
doc.recompute()

boolean2 = body2.newObject("PartDesign::Boolean", "Boolean001")
boolean2.Type = "Cut"
boolean2.addObjects([body3])

doc.recompute()
